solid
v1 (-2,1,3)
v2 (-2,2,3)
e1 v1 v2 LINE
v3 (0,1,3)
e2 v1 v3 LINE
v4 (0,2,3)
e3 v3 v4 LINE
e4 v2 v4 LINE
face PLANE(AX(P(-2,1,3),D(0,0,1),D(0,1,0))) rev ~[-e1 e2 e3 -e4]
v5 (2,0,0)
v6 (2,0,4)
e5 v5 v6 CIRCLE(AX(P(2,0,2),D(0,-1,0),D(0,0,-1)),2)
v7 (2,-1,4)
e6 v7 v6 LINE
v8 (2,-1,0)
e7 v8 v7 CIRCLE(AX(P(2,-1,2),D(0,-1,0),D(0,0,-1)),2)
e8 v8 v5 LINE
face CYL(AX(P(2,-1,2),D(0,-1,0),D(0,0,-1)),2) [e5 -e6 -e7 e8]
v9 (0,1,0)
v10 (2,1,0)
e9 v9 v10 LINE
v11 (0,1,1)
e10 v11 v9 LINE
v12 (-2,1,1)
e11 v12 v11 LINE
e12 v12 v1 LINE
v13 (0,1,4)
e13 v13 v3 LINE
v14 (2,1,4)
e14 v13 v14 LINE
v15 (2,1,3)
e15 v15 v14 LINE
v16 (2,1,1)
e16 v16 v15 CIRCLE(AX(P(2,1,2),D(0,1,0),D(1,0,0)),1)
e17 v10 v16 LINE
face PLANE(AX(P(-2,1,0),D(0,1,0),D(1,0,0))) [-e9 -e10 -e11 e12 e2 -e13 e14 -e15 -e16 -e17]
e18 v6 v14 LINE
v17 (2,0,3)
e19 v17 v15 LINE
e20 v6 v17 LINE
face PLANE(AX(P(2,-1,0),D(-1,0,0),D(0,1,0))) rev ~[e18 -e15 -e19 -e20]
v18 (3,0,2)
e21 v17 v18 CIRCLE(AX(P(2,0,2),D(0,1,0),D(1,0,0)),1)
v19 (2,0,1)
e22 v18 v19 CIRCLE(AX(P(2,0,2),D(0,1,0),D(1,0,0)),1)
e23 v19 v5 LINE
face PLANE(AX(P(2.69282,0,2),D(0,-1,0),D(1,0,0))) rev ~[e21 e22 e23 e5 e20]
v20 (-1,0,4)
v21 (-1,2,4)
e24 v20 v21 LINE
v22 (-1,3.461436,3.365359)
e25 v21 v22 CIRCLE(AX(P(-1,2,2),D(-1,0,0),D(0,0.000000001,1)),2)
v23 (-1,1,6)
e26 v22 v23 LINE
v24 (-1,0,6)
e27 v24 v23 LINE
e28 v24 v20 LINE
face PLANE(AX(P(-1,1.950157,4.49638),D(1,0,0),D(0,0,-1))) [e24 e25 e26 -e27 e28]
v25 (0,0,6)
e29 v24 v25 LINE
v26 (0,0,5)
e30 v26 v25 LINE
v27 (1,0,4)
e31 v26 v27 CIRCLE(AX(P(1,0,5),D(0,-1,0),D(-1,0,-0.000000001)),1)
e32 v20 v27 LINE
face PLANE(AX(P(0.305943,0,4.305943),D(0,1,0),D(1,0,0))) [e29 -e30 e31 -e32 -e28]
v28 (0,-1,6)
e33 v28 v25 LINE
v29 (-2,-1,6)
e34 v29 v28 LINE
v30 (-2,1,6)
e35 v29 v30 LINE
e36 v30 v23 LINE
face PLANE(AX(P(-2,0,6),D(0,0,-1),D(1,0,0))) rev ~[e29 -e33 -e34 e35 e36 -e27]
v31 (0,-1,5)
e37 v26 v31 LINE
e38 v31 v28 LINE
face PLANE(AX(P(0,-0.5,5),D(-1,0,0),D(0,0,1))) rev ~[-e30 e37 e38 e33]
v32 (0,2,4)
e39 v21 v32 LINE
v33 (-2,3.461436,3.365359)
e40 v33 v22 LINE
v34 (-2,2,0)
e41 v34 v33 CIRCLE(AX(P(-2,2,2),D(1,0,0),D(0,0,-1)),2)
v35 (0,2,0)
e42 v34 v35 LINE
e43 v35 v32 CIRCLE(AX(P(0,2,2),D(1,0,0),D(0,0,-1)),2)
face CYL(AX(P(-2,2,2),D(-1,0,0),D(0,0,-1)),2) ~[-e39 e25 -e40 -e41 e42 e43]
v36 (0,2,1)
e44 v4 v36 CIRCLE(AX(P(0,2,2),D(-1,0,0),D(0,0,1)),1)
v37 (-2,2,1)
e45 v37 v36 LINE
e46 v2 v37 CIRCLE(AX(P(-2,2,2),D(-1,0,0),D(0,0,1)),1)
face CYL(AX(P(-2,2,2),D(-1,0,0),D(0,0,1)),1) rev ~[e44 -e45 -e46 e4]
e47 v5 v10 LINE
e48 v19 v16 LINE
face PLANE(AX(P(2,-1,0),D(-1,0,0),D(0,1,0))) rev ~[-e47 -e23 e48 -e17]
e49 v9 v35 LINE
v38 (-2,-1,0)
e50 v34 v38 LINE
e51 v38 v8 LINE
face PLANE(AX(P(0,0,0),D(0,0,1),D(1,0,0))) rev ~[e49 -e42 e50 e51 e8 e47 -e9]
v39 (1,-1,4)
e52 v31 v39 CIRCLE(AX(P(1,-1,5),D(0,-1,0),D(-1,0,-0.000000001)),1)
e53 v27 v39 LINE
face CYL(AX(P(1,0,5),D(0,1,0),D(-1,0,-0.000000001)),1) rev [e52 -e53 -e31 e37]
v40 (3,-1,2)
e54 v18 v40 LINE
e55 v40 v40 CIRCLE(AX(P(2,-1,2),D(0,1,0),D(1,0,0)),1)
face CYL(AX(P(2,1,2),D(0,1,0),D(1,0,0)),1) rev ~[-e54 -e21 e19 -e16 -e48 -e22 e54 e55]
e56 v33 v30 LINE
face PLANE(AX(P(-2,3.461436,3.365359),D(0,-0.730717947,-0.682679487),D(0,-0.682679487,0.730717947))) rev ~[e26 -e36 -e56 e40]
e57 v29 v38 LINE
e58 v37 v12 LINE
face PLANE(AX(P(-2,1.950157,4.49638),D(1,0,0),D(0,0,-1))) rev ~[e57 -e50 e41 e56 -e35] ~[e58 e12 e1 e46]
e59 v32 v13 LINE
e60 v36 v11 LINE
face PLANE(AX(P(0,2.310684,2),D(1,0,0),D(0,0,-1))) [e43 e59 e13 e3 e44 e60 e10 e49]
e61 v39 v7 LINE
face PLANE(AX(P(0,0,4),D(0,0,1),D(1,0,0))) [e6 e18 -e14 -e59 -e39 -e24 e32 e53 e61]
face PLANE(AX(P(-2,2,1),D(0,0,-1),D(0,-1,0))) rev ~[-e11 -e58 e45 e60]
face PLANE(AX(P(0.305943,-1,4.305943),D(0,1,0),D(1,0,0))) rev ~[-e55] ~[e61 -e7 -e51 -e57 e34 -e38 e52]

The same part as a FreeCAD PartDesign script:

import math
import FreeCAD as App
import Part
import Sketcher

V = App.Vector
Q = App.Units.Quantity

doc = App.newDocument("Part")
params = doc.addObject("Spreadsheet::Sheet", "Params")
for row, (alias, value) in enumerate([
    ("sketch1_width", "4 mm"),
    ("sketch1_height", "2 mm"),
    ("pad1_length", "4 mm"),
    ("sketch2_radius", "2 mm"),
    ("pad2_length", "1 mm"),
    ("sketch3_diameter", "2 mm"),
    ("sketch4_radius", "1 mm"),
    ("sketch4_radius2", "2 mm"),
    ("sketch4_height", "2 mm"),
    ("pad3_length", "2 mm"),
    ("sketch5_width", "1 mm"),
    ("sketch5_height", "2 mm"),
    ("pad4_length", "1 mm"),
    ("sketch6_radius", "2 mm"),
    ("sketch6_width", "1 mm"),
    ("sketch6_height", "2 mm"),
    ("pad5_length", "1 mm"),
    ("sketch7_radius", "1 mm"),
    ("pad6_length", "1 mm"),
], start=1):
    params.set(f"A{row}", alias)
    params.set(f"B{row}", "=" + value)
    params.setAlias(f"B{row}", alias)

body = doc.addObject("PartDesign::Body", "Body")

sketch1 = doc.addObject("Sketcher::SketchObject", "Sketch")
body.addObject(sketch1)
sketch1.AttachmentSupport = (doc.XY_Plane, [""])
sketch1.MapMode = "FlatFace"
sketch1.addGeometry([
    Part.LineSegment(V(-2, 1, 0), V(-2, -1, 0)),
    Part.LineSegment(V(-2, -1, 0), V(2, -1, 0)),
    Part.LineSegment(V(2, -1, 0), V(2, 1, 0)),
    Part.LineSegment(V(2, 1, 0), V(-2, 1, 0)),
], False)
sketch1.addConstraint([
    Sketcher.Constraint("Coincident", 0, 2, 1, 1),
    Sketcher.Constraint("Coincident", 1, 2, 2, 1),
    Sketcher.Constraint("Coincident", 2, 2, 3, 1),
    Sketcher.Constraint("Coincident", 3, 2, 0, 1),
    Sketcher.Constraint("Vertical", 0),
    Sketcher.Constraint("Horizontal", 1),
    Sketcher.Constraint("Vertical", 2),
    Sketcher.Constraint("Horizontal", 3),
    Sketcher.Constraint("Symmetric", 0, 2, 2, 2, -1, 1),
    Sketcher.Constraint("DistanceX", 1, 1, 1, 2, Q("4 mm")),
    Sketcher.Constraint("DistanceY", 0, 2, 0, 1, Q("2 mm")),
])
sketch1.setExpression("Constraints[9]", "Params.sketch1_width")
sketch1.setExpression("Constraints[10]", "Params.sketch1_height")
pad1 = doc.addObject("PartDesign::Pad", "Pad")
body.addObject(pad1)
pad1.Profile = sketch1
pad1.setExpression("Length", "Params.pad1_length")

sketch2 = doc.addObject("Sketcher::SketchObject", "Sketch001")
body.addObject(sketch2)
sketch2.AttachmentSupport = (doc.XZ_Plane, [""])
sketch2.MapMode = "FlatFace"
sketch2.AttachmentOffset = App.Placement(V(0, 0, 1), App.Rotation())
sketch2.addGeometry([
    Part.LineSegment(V(2, 4, 0), V(2, 0, 0)),
    Part.ArcOfCircle(Part.Circle(V(2, 2, 0), V(0, 0, 1), 2), math.radians(-90), math.radians(90)),
], False)
sketch2.addConstraint([
    Sketcher.Constraint("Coincident", 0, 1, 1, 2),
    Sketcher.Constraint("Coincident", 1, 1, 0, 2),
    Sketcher.Constraint("Vertical", 0),
    Sketcher.Constraint("PointOnObject", 1, 1, -1),
    Sketcher.Constraint("Vertical", 1, 3, 0, 1),
    Sketcher.Constraint("Radius", 1, Q("2 mm")),
    Sketcher.Constraint("DistanceX", -1, 1, 1, 3, Q("2 mm")),
])
sketch2.setExpression("Constraints[5]", "Params.sketch2_radius")
pad2 = doc.addObject("PartDesign::Pad", "Pad001")
body.addObject(pad2)
pad2.Profile = sketch2
pad2.setExpression("Length", "Params.pad2_length")
pad2.Reversed = True

sketch3 = doc.addObject("Sketcher::SketchObject", "Sketch002")
body.addObject(sketch3)
sketch3.AttachmentSupport = (doc.XZ_Plane, [""])
sketch3.MapMode = "FlatFace"
sketch3.AttachmentOffset = App.Placement(V(0, 0, -1), App.Rotation())
sketch3.addGeometry(Part.Circle(V(2, 2, 0), V(0, 0, 1), 1), False)
sketch3.addConstraint([
    Sketcher.Constraint("Diameter", 0, Q("2 mm")),
    Sketcher.Constraint("DistanceX", -1, 1, 0, 3, Q("2 mm")),
    Sketcher.Constraint("DistanceY", -1, 1, 0, 3, Q("2 mm")),
])
sketch3.setExpression("Constraints[0]", "Params.sketch3_diameter")
pocket1 = doc.addObject("PartDesign::Pocket", "Pocket")
body.addObject(pocket1)
pocket1.Profile = sketch3
pocket1.Type = "ThroughAll"
pocket1.Reversed = True

sketch4 = doc.addObject("Sketcher::SketchObject", "Sketch003")
body.addObject(sketch4)
sketch4.AttachmentSupport = (doc.YZ_Plane, [""])
sketch4.MapMode = "FlatFace"
sketch4.AttachmentOffset = App.Placement(V(0, 0, -2), App.Rotation())
sketch4.addGeometry([
    Part.LineSegment(V(0, 4, 0), V(-1, 4, 0)),
    Part.LineSegment(V(-1, 4, 0), V(-1, 6, 0)),
    Part.LineSegment(V(-1, 6, 0), V(0, 6, 0)),
    Part.LineSegment(V(0, 6, 0), V(0, 4, 0)),
    Part.LineSegment(V(2, 0, 0), V(1, 0, 0)),
    Part.LineSegment(V(1, 0, 0), V(1, 1, 0)),
    Part.LineSegment(V(1, 1, 0), V(2, 1, 0)),
    Part.ArcOfCircle(Part.Circle(V(2, 2, 0), V(0, 0, 1), 1), math.radians(-90), math.radians(90)),
    Part.LineSegment(V(2, 3, 0), V(1, 3, 0)),
    Part.LineSegment(V(1, 3, 0), V(1, 4, 0)),
    Part.LineSegment(V(1, 4, 0), V(2, 4, 0)),
    Part.ArcOfCircle(Part.Circle(V(2, 2, 0), V(0, 0, 1), 2), math.radians(-90), math.radians(90)),
], False)
sketch4.addConstraint([
    Sketcher.Constraint("Coincident", 0, 2, 1, 1),
    Sketcher.Constraint("Coincident", 1, 2, 2, 1),
    Sketcher.Constraint("Coincident", 2, 2, 3, 1),
    Sketcher.Constraint("Coincident", 3, 2, 0, 1),
    Sketcher.Constraint("Coincident", 4, 2, 5, 1),
    Sketcher.Constraint("Coincident", 5, 2, 6, 1),
    Sketcher.Constraint("Tangent", 6, 2, 7, 1),
    Sketcher.Constraint("Tangent", 7, 2, 8, 1),
    Sketcher.Constraint("Coincident", 8, 2, 9, 1),
    Sketcher.Constraint("Coincident", 9, 2, 10, 1),
    Sketcher.Constraint("Tangent", 10, 2, 11, 2),
    Sketcher.Constraint("Tangent", 11, 1, 4, 1),
    Sketcher.Constraint("Horizontal", 0),
    Sketcher.Constraint("Vertical", 1),
    Sketcher.Constraint("Horizontal", 2),
    Sketcher.Constraint("Vertical", 3),
    Sketcher.Constraint("Horizontal", 4),
    Sketcher.Constraint("Vertical", 5),
    Sketcher.Constraint("Horizontal", 6),
    Sketcher.Constraint("Horizontal", 8),
    Sketcher.Constraint("Vertical", 9),
    Sketcher.Constraint("Horizontal", 10),
    Sketcher.Constraint("Coincident", 11, 3, 7, 3),
    Sketcher.Constraint("Symmetric", 0, 2, 9, 2, -2),
    Sketcher.Constraint("PointOnObject", 2, 2, -2),
    Sketcher.Constraint("PointOnObject", 4, 2, -1),
    Sketcher.Constraint("Vertical", 5, 2, 8, 2),
    Sketcher.Constraint("Equal", 2, 4),
    Sketcher.Constraint("Equal", 10, 5),
    Sketcher.Constraint("Radius", 7, Q("1 mm")),
    Sketcher.Constraint("Radius", 11, Q("2 mm")),
    Sketcher.Constraint("DistanceY", 1, 1, 1, 2, Q("2 mm")),
])
sketch4.setExpression("Constraints[29]", "Params.sketch4_radius")
sketch4.setExpression("Constraints[30]", "Params.sketch4_radius2")
sketch4.setExpression("Constraints[31]", "Params.sketch4_height")
pad3 = doc.addObject("PartDesign::Pad", "Pad002")
body.addObject(pad3)
pad3.Profile = sketch4
pad3.setExpression("Length", "Params.pad3_length")

sketch5 = doc.addObject("Sketcher::SketchObject", "Sketch004")
body.addObject(sketch5)
sketch5.AttachmentSupport = (doc.XZ_Plane, [""])
sketch5.MapMode = "FlatFace"
sketch5.addGeometry([
    Part.LineSegment(V(-2, 4, 0), V(-2, 6, 0)),
    Part.LineSegment(V(-2, 6, 0), V(-1, 6, 0)),
    Part.LineSegment(V(-1, 6, 0), V(-1, 4, 0)),
    Part.LineSegment(V(-1, 4, 0), V(-2, 4, 0)),
], False)
sketch5.addConstraint([
    Sketcher.Constraint("Coincident", 0, 2, 1, 1),
    Sketcher.Constraint("Coincident", 1, 2, 2, 1),
    Sketcher.Constraint("Coincident", 2, 2, 3, 1),
    Sketcher.Constraint("Coincident", 3, 2, 0, 1),
    Sketcher.Constraint("Vertical", 0),
    Sketcher.Constraint("Horizontal", 1),
    Sketcher.Constraint("Vertical", 2),
    Sketcher.Constraint("Horizontal", 3),
    Sketcher.Constraint("DistanceX", 1, 1, 1, 2, Q("1 mm")),
    Sketcher.Constraint("DistanceY", 0, 1, 0, 2, Q("2 mm")),
    Sketcher.Constraint("DistanceX", 0, 2, -1, 1, Q("2 mm")),
    Sketcher.Constraint("DistanceY", -1, 1, 0, 2, Q("6 mm")),
])
sketch5.setExpression("Constraints[8]", "Params.sketch5_width")
sketch5.setExpression("Constraints[9]", "Params.sketch5_height")
pad4 = doc.addObject("PartDesign::Pad", "Pad003")
body.addObject(pad4)
pad4.Profile = sketch5
pad4.setExpression("Length", "Params.pad4_length")
pad4.Reversed = True

sketch6 = doc.addObject("Sketcher::SketchObject", "Sketch005")
body.addObject(sketch6)
sketch6.AttachmentSupport = (doc.YZ_Plane, [""])
sketch6.MapMode = "FlatFace"
sketch6.AttachmentOffset = App.Placement(V(0, 0, -2), App.Rotation())
sketch6.addGeometry([
    Part.LineSegment(V(1, 6, 0), V(3.5, 3.4, 0)),
    Part.ArcOfCircle(Part.Circle(V(2, 2, 0), V(0, 0, 1), 2), math.radians(43), math.radians(90)),
    Part.LineSegment(V(2, 4, 0), V(1, 4, 0)),
    Part.LineSegment(V(1, 4, 0), V(1, 6, 0)),
], False)
sketch6.addConstraint([
    Sketcher.Constraint("Tangent", 0, 2, 1, 1),
    Sketcher.Constraint("Tangent", 1, 2, 2, 1),
    Sketcher.Constraint("Coincident", 2, 2, 3, 1),
    Sketcher.Constraint("Coincident", 3, 2, 0, 1),
    Sketcher.Constraint("Horizontal", 2),
    Sketcher.Constraint("Vertical", 3),
    Sketcher.Constraint("Radius", 1, Q("2 mm")),
    Sketcher.Constraint("DistanceX", 2, 2, 2, 1, Q("1 mm")),
    Sketcher.Constraint("DistanceY", 3, 1, 3, 2, Q("2 mm")),
    Sketcher.Constraint("DistanceX", -1, 1, 1, 3, Q("2 mm")),
    Sketcher.Constraint("DistanceY", -1, 1, 1, 3, Q("2 mm")),
])
sketch6.setExpression("Constraints[6]", "Params.sketch6_radius")
sketch6.setExpression("Constraints[7]", "Params.sketch6_width")
sketch6.setExpression("Constraints[8]", "Params.sketch6_height")
pad5 = doc.addObject("PartDesign::Pad", "Pad004")
body.addObject(pad5)
pad5.Profile = sketch6
pad5.setExpression("Length", "Params.pad5_length")

sketch7 = doc.addObject("Sketcher::SketchObject", "Sketch006")
body.addObject(sketch7)
sketch7.AttachmentSupport = (doc.XZ_Plane, [""])
sketch7.MapMode = "FlatFace"
sketch7.addGeometry([
    Part.LineSegment(V(1, 4, 0), V(0, 4, 0)),
    Part.LineSegment(V(0, 4, 0), V(0, 5, 0)),
    Part.ArcOfCircle(Part.Circle(V(1, 5, 0), V(0, 0, 1), 1), math.radians(-180), math.radians(-90)),
], False)
sketch7.addConstraint([
    Sketcher.Constraint("Coincident", 0, 2, 1, 1),
    Sketcher.Constraint("Tangent", 1, 2, 2, 1),
    Sketcher.Constraint("Tangent", 2, 2, 0, 1),
    Sketcher.Constraint("Horizontal", 0),
    Sketcher.Constraint("Vertical", 1),
    Sketcher.Constraint("PointOnObject", 0, 2, -2),
    Sketcher.Constraint("Radius", 2, Q("1 mm")),
    Sketcher.Constraint("DistanceY", -1, 1, 2, 3, Q("5 mm")),
])
sketch7.setExpression("Constraints[6]", "Params.sketch7_radius")
pad6 = doc.addObject("PartDesign::Pad", "Pad005")
body.addObject(pad6)
pad6.Profile = sketch7
pad6.setExpression("Length", "Params.pad6_length")

doc.recompute()
